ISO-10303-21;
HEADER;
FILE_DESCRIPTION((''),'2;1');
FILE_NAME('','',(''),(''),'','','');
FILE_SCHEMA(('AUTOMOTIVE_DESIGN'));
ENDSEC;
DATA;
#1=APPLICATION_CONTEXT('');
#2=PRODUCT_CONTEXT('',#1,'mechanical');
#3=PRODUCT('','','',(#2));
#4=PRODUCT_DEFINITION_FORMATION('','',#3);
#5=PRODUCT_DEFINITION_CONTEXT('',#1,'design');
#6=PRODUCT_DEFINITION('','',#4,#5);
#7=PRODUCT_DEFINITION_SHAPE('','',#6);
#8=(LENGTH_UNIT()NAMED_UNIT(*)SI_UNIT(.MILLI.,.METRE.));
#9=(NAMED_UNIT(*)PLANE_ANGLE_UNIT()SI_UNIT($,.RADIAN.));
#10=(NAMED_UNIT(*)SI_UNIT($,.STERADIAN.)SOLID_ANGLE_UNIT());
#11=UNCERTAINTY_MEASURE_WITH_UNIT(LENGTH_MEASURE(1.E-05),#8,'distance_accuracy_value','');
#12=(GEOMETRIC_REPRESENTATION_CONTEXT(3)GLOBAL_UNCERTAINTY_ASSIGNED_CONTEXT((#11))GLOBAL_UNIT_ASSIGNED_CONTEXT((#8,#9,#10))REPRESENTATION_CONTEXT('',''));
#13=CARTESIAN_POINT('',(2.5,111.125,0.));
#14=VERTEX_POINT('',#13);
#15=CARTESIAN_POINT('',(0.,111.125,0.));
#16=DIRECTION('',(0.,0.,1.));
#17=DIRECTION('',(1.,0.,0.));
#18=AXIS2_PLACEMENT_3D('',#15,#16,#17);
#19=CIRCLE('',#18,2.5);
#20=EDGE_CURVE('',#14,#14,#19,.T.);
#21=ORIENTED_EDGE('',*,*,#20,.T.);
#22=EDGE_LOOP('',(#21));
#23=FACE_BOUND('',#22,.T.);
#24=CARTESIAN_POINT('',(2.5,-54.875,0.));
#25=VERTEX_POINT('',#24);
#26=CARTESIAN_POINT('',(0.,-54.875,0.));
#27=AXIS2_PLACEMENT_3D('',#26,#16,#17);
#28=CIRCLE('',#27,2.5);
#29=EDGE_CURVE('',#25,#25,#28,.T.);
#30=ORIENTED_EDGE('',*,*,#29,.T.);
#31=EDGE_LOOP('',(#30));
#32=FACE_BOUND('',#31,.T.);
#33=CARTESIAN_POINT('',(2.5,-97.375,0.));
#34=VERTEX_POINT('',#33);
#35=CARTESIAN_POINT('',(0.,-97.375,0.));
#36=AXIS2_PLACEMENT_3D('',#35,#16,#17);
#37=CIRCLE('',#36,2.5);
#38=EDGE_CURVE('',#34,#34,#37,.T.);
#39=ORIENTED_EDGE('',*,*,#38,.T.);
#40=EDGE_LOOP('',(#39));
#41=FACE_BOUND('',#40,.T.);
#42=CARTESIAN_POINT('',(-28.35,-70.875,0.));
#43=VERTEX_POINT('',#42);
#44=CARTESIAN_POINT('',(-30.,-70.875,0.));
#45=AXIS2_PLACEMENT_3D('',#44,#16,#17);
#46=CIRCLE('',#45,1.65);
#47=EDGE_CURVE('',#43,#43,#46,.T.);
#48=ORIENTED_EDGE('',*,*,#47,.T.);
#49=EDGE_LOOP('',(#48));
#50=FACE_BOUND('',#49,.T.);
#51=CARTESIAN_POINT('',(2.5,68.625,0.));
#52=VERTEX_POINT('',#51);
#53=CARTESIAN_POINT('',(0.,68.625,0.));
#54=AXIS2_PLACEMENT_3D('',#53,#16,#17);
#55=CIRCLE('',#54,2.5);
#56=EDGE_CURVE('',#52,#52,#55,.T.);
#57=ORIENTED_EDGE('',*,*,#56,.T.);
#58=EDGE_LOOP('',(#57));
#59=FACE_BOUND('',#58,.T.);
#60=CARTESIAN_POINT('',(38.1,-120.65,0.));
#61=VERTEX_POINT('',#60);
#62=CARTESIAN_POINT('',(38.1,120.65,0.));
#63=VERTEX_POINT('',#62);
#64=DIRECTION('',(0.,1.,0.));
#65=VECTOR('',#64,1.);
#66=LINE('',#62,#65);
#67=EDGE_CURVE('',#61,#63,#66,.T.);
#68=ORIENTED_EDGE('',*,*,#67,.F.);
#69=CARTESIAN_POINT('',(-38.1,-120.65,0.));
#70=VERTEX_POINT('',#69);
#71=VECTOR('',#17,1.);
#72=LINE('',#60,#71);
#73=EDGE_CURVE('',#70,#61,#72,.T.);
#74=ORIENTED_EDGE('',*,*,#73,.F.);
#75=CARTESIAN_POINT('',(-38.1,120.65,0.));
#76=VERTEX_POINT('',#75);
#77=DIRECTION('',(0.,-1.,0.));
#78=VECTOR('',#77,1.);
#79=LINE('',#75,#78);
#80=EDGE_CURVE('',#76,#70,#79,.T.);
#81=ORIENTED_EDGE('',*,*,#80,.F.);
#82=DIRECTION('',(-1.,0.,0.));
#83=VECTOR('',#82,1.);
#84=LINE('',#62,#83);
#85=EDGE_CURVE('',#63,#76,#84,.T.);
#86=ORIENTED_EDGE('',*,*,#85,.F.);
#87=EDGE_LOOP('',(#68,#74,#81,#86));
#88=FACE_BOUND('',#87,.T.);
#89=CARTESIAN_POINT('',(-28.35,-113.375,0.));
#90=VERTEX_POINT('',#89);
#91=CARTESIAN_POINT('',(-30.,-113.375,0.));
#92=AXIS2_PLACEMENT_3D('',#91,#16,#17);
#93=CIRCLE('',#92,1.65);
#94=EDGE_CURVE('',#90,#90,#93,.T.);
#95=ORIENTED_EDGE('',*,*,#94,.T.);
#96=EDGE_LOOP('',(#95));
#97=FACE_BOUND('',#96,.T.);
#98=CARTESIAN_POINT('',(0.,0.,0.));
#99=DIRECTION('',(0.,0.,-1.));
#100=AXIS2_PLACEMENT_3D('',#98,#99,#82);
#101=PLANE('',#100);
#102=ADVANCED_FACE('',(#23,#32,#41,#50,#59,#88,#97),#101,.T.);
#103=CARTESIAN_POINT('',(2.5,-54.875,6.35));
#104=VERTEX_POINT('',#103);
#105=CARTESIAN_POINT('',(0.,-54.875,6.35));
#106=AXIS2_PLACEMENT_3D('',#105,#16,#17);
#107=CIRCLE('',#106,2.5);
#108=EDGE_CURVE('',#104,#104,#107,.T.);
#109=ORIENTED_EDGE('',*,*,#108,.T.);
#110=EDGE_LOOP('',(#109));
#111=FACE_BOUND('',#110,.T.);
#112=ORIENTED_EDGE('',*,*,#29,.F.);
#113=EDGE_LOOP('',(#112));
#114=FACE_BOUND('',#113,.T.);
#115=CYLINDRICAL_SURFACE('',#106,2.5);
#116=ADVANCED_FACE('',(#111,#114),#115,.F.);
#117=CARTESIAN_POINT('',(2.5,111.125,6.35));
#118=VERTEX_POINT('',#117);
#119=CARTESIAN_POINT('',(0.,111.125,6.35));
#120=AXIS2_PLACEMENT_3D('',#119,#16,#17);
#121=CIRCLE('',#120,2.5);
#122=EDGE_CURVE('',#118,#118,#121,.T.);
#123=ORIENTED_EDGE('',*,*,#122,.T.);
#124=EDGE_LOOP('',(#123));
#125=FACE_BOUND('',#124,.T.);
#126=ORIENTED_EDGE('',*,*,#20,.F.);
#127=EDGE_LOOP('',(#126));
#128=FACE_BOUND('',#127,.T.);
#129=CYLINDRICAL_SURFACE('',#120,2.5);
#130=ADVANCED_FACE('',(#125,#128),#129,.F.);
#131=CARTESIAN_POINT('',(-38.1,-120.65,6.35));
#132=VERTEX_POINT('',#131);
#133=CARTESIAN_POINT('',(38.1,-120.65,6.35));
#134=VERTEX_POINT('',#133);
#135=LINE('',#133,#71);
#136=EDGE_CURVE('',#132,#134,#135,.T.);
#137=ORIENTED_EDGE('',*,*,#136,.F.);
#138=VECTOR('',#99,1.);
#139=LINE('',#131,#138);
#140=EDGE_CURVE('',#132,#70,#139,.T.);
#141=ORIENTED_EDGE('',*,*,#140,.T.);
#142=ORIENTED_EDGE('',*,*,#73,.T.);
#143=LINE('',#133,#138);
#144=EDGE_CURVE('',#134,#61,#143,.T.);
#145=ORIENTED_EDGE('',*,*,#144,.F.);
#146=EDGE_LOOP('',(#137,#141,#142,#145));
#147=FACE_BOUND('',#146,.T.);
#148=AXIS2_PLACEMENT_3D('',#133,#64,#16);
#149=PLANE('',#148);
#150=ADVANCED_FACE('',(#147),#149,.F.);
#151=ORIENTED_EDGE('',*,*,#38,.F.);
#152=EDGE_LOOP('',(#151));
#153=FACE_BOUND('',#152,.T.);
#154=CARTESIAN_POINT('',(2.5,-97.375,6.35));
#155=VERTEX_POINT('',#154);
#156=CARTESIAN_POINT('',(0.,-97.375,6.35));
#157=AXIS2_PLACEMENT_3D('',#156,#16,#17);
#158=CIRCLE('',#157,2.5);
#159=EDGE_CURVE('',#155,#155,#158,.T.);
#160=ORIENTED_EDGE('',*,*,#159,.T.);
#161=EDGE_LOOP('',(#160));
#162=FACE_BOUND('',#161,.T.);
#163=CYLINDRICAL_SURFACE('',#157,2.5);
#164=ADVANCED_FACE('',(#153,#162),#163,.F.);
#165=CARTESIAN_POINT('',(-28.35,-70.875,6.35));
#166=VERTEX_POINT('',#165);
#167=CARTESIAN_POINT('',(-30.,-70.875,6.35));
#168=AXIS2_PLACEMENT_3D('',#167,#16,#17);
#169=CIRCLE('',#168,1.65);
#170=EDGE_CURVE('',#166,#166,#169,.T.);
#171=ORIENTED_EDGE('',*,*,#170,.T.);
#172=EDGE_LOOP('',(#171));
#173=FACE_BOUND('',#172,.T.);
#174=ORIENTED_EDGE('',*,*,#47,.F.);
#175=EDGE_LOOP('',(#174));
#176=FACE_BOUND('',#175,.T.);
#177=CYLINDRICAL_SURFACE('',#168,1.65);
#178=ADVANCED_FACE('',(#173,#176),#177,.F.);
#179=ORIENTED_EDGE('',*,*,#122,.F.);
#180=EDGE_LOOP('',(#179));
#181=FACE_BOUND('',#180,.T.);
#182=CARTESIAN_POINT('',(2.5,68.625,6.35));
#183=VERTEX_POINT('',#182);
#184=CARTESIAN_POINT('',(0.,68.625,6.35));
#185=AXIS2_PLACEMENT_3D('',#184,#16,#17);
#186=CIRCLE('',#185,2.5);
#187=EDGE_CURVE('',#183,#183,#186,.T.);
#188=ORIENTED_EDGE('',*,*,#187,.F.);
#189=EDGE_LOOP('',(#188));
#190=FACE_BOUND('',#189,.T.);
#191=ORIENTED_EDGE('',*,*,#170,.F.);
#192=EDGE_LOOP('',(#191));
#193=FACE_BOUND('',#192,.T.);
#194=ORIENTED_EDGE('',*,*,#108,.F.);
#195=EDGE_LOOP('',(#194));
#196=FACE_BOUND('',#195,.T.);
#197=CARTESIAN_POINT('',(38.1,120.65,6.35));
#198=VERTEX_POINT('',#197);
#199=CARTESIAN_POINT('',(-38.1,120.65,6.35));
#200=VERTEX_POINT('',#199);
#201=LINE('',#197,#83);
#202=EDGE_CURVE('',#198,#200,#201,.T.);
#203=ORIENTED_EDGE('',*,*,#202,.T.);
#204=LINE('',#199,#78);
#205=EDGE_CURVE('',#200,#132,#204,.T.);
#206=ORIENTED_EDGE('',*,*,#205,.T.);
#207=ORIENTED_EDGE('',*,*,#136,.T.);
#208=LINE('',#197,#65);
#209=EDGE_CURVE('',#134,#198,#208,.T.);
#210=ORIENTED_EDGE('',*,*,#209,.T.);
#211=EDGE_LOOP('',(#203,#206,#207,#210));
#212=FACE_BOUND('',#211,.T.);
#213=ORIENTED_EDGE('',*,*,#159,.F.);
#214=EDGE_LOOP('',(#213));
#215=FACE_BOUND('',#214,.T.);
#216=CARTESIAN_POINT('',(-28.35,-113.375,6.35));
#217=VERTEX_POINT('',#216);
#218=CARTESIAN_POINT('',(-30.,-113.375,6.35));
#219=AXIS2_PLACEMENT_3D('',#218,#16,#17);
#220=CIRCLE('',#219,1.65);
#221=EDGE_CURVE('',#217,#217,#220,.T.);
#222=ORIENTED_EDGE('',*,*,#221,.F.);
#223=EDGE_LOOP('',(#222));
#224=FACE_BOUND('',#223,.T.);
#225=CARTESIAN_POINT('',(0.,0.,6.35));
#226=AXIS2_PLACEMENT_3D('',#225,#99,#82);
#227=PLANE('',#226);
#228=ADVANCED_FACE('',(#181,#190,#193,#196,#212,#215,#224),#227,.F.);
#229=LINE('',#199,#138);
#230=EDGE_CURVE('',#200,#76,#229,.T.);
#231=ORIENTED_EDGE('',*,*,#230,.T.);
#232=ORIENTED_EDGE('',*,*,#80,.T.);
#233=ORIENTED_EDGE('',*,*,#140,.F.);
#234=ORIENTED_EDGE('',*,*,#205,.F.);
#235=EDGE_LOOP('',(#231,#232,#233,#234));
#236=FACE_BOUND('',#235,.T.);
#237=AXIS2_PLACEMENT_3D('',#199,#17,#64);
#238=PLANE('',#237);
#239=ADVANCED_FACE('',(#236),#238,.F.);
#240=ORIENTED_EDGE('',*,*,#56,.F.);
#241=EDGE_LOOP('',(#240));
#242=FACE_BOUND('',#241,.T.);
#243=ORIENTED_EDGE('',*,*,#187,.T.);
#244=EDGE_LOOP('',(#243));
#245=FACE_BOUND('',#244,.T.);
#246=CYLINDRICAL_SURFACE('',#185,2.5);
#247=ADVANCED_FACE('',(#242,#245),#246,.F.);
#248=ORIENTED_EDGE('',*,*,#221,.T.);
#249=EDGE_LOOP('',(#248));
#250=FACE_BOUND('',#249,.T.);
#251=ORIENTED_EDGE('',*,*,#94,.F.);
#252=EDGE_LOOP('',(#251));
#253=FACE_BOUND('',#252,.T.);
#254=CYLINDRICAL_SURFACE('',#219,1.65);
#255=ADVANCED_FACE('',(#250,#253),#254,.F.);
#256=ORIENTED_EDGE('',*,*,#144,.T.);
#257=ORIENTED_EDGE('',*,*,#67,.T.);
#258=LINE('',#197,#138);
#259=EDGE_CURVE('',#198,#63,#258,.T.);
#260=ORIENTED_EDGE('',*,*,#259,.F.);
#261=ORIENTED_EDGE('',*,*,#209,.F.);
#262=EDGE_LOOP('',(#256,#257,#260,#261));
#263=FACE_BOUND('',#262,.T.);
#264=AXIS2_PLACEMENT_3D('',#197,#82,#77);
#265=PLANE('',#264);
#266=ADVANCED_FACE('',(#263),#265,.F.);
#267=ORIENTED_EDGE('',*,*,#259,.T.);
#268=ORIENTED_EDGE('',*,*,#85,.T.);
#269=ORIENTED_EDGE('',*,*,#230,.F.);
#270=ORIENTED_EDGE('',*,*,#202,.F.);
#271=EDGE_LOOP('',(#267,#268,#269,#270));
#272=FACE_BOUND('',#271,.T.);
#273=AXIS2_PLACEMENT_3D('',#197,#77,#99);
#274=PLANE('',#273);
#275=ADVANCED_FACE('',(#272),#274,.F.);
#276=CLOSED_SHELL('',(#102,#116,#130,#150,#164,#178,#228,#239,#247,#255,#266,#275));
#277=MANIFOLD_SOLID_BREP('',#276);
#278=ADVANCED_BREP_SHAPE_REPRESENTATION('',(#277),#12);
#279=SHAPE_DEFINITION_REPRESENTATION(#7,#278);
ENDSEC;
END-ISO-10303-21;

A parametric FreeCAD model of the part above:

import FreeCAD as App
import Part
import Sketcher
from FreeCAD import Vector
Q = App.Units.Quantity

doc = App.newDocument("Part")
body = doc.addObject("PartDesign::Body", "Body")

# Sketch on XY plane
sketch1 = doc.addObject("Sketcher::SketchObject", "Sketch")
body.addObject(sketch1)
sketch1.AttachmentSupport = (doc.XY_Plane, [""])
sketch1.MapMode = "FlatFace"
sketch1.addGeometry(Part.LineSegment(Vector(-38.1, 120.65, 0), Vector(-38.1, -120.65, 0)), False)
sketch1.addGeometry(Part.LineSegment(Vector(-38.1, -120.65, 0), Vector(38.1, -120.65, 0)), False)
sketch1.addGeometry(Part.LineSegment(Vector(38.1, -120.65, 0), Vector(38.1, 120.65, 0)), False)
sketch1.addGeometry(Part.LineSegment(Vector(38.1, 120.65, 0), Vector(-38.1, 120.65, 0)), False)
sketch1.addConstraint(Sketcher.Constraint("Coincident", 0, 2, 1, 1))
sketch1.addConstraint(Sketcher.Constraint("Coincident", 1, 2, 2, 1))
sketch1.addConstraint(Sketcher.Constraint("Coincident", 2, 2, 3, 1))
sketch1.addConstraint(Sketcher.Constraint("Coincident", 3, 2, 0, 1))
sketch1.addConstraint(Sketcher.Constraint("Vertical", 0))
sketch1.addConstraint(Sketcher.Constraint("Horizontal", 1))
sketch1.addConstraint(Sketcher.Constraint("Vertical", 2))
sketch1.addConstraint(Sketcher.Constraint("Horizontal", 3))
sketch1.addConstraint(Sketcher.Constraint("Symmetric", 0, 2, 2, 2, -1, 1))
sketch1.addConstraint(Sketcher.Constraint("DistanceX", 1, 1, 1, 2, Q("3 in")))
sketch1.addConstraint(Sketcher.Constraint("DistanceY", 0, 2, 0, 1, Q("9.5 in")))
pad1 = doc.addObject("PartDesign::Pad", "Pad")
body.addObject(pad1)
pad1.Profile = sketch1
pad1.Length = Q("0.25 in")

# Sketch on XY plane
sketch2 = doc.addObject("Sketcher::SketchObject", "Sketch001")
body.addObject(sketch2)
sketch2.AttachmentSupport = (doc.XY_Plane, [""])
sketch2.MapMode = "FlatFace"
sketch2.AttachmentOffset = App.Placement(Vector(0, 0, 0.25 * 25.4), App.Rotation())
sketch2.addGeometry(Part.Circle(Vector(0, -97.375, 0), Vector(0, 0, 1), 2.5), False)
sketch2.addGeometry(Part.Circle(Vector(0, 111.125, 0), Vector(0, 0, 1), 2.5), False)
sketch2.addGeometry(Part.Circle(Vector(0, -54.875, 0), Vector(0, 0, 1), 2.5), False)
sketch2.addGeometry(Part.Circle(Vector(0, 68.625, 0), Vector(0, 0, 1), 2.5), False)
sketch2.addConstraint(Sketcher.Constraint("Equal", 0, 1))
sketch2.addConstraint(Sketcher.Constraint("Equal", 1, 2))
sketch2.addConstraint(Sketcher.Constraint("Equal", 2, 3))
sketch2.addConstraint(Sketcher.Constraint("PointOnObject", 0, 3, -2))
sketch2.addConstraint(Sketcher.Constraint("PointOnObject", 1, 3, -2))
sketch2.addConstraint(Sketcher.Constraint("PointOnObject", 2, 3, -2))
sketch2.addConstraint(Sketcher.Constraint("PointOnObject", 3, 3, -2))
sketch2.addConstraint(Sketcher.Constraint("Diameter", 0, 5.0))
sketch2.addConstraint(Sketcher.Constraint("DistanceY", -1, 1, 1, 3, Q("4.375 in")))
sketch2.addConstraint(Sketcher.Constraint("DistanceY", 0, 3, -1, 1, 97.375))
sketch2.addConstraint(Sketcher.Constraint("DistanceY", 2, 3, -1, 1, 54.875))
sketch2.addConstraint(Sketcher.Constraint("DistanceY", -1, 1, 3, 3, 68.625))
doc.recompute()
hole = doc.addObject("PartDesign::Hole", "Hole")
body.addObject(hole)
hole.Profile = sketch2
hole.ThreadType = "None"
hole.Diameter = 5
hole.DepthType = "ThroughAll"

# Sketch on XY plane
sketch3 = doc.addObject("Sketcher::SketchObject", "Sketch002")
body.addObject(sketch3)
sketch3.AttachmentSupport = (doc.XY_Plane, [""])
sketch3.MapMode = "FlatFace"
sketch3.AttachmentOffset = App.Placement(Vector(0, 0, 0.25 * 25.4), App.Rotation())
sketch3.addGeometry(Part.Circle(Vector(-30, -70.875, 0), Vector(0, 0, 1), 1.65), False)
sketch3.addGeometry(Part.Circle(Vector(-30, -113.375, 0), Vector(0, 0, 1), 1.65), False)
sketch3.addConstraint(Sketcher.Constraint("Equal", 0, 1))
sketch3.addConstraint(Sketcher.Constraint("Vertical", 0, 3, 1, 3))
sketch3.addConstraint(Sketcher.Constraint("Diameter", 0, 3.3))
sketch3.addConstraint(Sketcher.Constraint("DistanceX", 0, 3, -1, 1, 30.0))
sketch3.addConstraint(Sketcher.Constraint("DistanceY", 0, 3, -1, 1, 70.875))
sketch3.addConstraint(Sketcher.Constraint("DistanceY", 1, 3, -1, 1, 113.375))
doc.recompute()
hole2 = doc.addObject("PartDesign::Hole", "Hole001")
body.addObject(hole2)
hole2.Profile = sketch3
hole2.ThreadType = "None"
hole2.Diameter = 3.3
hole2.DepthType = "ThroughAll"

doc.recompute()
